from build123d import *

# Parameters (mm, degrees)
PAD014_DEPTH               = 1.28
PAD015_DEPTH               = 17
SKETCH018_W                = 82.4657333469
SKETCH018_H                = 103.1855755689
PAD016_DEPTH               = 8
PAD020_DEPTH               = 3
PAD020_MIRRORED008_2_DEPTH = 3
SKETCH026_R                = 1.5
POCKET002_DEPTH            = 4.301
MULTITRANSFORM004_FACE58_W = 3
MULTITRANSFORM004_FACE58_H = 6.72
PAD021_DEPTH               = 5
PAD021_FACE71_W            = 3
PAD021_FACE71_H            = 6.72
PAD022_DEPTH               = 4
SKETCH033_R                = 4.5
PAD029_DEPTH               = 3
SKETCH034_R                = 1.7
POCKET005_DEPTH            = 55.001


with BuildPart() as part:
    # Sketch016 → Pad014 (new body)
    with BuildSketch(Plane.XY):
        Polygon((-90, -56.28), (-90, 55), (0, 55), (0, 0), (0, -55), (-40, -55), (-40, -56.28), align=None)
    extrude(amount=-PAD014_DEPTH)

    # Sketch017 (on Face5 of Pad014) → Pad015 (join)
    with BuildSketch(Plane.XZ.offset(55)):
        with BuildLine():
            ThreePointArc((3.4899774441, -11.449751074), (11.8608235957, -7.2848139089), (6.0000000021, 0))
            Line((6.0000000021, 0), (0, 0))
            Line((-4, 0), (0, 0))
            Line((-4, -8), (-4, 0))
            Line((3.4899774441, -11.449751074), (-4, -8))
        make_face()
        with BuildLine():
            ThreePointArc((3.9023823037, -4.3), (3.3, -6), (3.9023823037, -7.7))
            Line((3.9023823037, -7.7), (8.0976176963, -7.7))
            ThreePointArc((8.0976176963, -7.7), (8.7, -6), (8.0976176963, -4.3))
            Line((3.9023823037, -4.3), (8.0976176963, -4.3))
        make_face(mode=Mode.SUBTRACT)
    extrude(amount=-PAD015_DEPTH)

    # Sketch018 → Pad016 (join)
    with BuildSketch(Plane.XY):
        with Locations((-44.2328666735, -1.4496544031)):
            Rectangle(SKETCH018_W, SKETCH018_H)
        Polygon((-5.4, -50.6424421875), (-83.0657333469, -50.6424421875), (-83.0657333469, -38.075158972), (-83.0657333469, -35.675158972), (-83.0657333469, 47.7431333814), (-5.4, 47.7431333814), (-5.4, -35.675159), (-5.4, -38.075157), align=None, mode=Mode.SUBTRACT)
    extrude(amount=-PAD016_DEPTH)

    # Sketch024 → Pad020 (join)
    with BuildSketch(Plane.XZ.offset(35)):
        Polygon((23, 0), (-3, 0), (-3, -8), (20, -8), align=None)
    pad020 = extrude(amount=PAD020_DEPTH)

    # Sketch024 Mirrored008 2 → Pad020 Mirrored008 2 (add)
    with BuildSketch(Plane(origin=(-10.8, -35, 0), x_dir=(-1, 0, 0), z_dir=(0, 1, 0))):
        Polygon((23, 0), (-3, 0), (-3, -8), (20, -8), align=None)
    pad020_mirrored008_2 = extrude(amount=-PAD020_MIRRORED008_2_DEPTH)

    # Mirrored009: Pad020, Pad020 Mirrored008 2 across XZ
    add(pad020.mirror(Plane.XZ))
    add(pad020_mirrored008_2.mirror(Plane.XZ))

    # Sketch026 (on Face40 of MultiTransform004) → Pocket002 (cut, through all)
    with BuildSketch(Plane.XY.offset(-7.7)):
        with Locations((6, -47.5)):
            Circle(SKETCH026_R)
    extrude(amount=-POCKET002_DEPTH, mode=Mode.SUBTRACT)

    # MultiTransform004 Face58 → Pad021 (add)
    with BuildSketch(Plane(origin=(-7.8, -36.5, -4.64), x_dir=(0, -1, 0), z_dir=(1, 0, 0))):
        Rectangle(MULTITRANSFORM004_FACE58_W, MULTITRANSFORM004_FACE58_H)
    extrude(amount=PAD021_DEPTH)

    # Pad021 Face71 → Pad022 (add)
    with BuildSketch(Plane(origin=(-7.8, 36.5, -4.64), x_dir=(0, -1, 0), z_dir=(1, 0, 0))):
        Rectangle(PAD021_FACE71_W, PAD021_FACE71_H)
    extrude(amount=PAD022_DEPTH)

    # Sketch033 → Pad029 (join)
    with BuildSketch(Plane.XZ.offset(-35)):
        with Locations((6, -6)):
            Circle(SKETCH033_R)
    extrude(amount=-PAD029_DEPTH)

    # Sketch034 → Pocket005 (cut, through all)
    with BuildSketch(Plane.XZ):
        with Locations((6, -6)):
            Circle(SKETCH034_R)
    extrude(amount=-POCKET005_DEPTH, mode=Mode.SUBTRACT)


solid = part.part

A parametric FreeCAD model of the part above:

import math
import FreeCAD as App
import Part
import Sketcher
from FreeCAD import Vector
Q = App.Units.Quantity


def add_polygon(sketch, points):
    """Adds a closed chain of lines whose ends are joined by coincident constraints."""
    first, n = sketch.GeometryCount, len(points)
    for a, b in zip(points, points[1:] + points[:1]):
        sketch.addGeometry(Part.LineSegment(App.Vector(*a, 0), App.Vector(*b, 0)), False)
    for i in range(n):
        sketch.addConstraint(Sketcher.Constraint("Coincident", first + i, 2, first + (i + 1) % n, 1))

doc = App.newDocument("Part")
params = doc.addObject("Spreadsheet::Sheet", "Params")
for row, (alias, value) in enumerate([
    ("sketch1_width", "50 mm"),
    ("sketch1_width2", "40 mm"),
    ("sketch1_height", "110 mm"),
    ("sketch1_height2", "111.28 mm"),
    ("pad1_length", "1.28 mm"),
    ("sketch2_radius", "6 mm"),
    ("sketch2_radius2", "2.7 mm"),
    ("sketch2_width", "10 mm"),
    ("sketch2_height", "8 mm"),
    ("pad2_length", "17 mm"),
    ("pad3_length", "8 mm"),
    ("sketch4_width", "26 mm"),
    ("sketch4_width2", "23 mm"),
    ("sketch4_height", "8 mm"),
    ("pad4_length", "3 mm"),
    ("sketch5_width", "26 mm"),
    ("sketch5_width2", "23 mm"),
    ("sketch5_height", "8 mm"),
    ("pad5_length", "3 mm"),
    ("sketch6_diameter", "3 mm"),
    ("sketch7_width", "3 mm"),
    ("sketch7_height", "6.72 mm"),
    ("pad6_length", "5 mm"),
    ("sketch8_width", "3 mm"),
    ("sketch8_height", "6.72 mm"),
    ("pad7_length", "4 mm"),
    ("sketch9_diameter", "9 mm"),
    ("pad8_length", "3 mm"),
    ("sketch10_diameter", "3.4 mm"),
], start=1):
    params.set(f"A{row}", alias)
    params.set(f"B{row}", "=" + value)
    params.setAlias(f"B{row}", alias)

body = doc.addObject("PartDesign::Body", "Body")

# Sketch on XY plane
sketch1 = body.newObject("Sketcher::SketchObject", "Sketch")
sketch1.AttachmentSupport = (doc.getObject("XY_Plane"), [""])
sketch1.MapMode = "FlatFace"
add_polygon(sketch1, [(-90, 55), (-90, -56.28), (-40, -56.28), (-40, -55), (0, -55), (0, 55)])  # lines 0-5
sketch1.addConstraint([
    Sketcher.Constraint("Vertical", 0),
    Sketcher.Constraint("Horizontal", 1),
    Sketcher.Constraint("Vertical", 2),
    Sketcher.Constraint("Horizontal", 3),
    Sketcher.Constraint("Vertical", 4),
    Sketcher.Constraint("Horizontal", 5),
    Sketcher.Constraint("Symmetric", 3, 2, 4, 2, -1, 1),
    Sketcher.Constraint("DistanceX", 1, 1, 1, 2, Q("50 mm")),
    Sketcher.Constraint("DistanceX", 3, 1, 3, 2, Q("40 mm")),
    Sketcher.Constraint("DistanceY", 4, 1, 4, 2, Q("110 mm")),
    Sketcher.Constraint("DistanceY", 0, 2, 0, 1, Q("111.28 mm")),
])
sketch1.setExpression("Constraints[13]", "Params.sketch1_width")
sketch1.setExpression("Constraints[14]", "Params.sketch1_width2")
sketch1.setExpression("Constraints[15]", "Params.sketch1_height")
sketch1.setExpression("Constraints[16]", "Params.sketch1_height2")
pad1 = body.newObject("PartDesign::Pad", "Pad")
pad1.Profile = sketch1
pad1.setExpression("Length", "Params.pad1_length")
pad1.Reversed = True

# Sketch on XZ plane
sketch2 = body.newObject("Sketcher::SketchObject", "Sketch001")
sketch2.AttachmentSupport = (doc.getObject("XZ_Plane"), [""])
sketch2.MapMode = "FlatFace"
sketch2.AttachmentOffset = App.Placement(Vector(0, 0, 55), App.Rotation())
sketch2.addGeometry([
    Part.ArcOfCircle(Part.Circle(Vector(6, -6, 0), Vector(0, 0, 1), 6), math.radians(-114.729646), math.radians(90)),  # 0
    Part.LineSegment(Vector(6, 0, 0), Vector(-4, 0, 0)),  # 1
    Part.LineSegment(Vector(-4, 0, 0), Vector(-4, -8, 0)),  # 2
    Part.LineSegment(Vector(-4, -8, 0), Vector(3.489977, -11.449751, 0)),  # 3
    Part.ArcOfCircle(Part.Circle(Vector(6, -6, 0), Vector(0, 0, 1), 2.7), math.radians(140.977197), math.radians(219.022803)),  # 4
    Part.LineSegment(Vector(3.902382, -4.3, 0), Vector(8.097618, -4.3, 0)),  # 5
    Part.ArcOfCircle(Part.Circle(Vector(6, -6, 0), Vector(0, 0, 1), 2.7), math.radians(-39.022803), math.radians(39.022803)),  # 6
    Part.LineSegment(Vector(8.097618, -7.7, 0), Vector(3.902382, -7.7, 0)),  # 7
], False)
sketch2.addConstraint([
    Sketcher.Constraint("Tangent", 0, 2, 1, 1),
    Sketcher.Constraint("Coincident", 1, 2, 2, 1),
    Sketcher.Constraint("Coincident", 2, 2, 3, 1),
    Sketcher.Constraint("Coincident", 3, 2, 0, 1),
    Sketcher.Constraint("Coincident", 4, 1, 5, 1),
    Sketcher.Constraint("Coincident", 5, 2, 6, 2),
    Sketcher.Constraint("Coincident", 6, 1, 7, 1),
    Sketcher.Constraint("Coincident", 7, 2, 4, 2),
    Sketcher.Constraint("Horizontal", 1),
    Sketcher.Constraint("Vertical", 2),
    Sketcher.Constraint("Horizontal", 5),
    Sketcher.Constraint("Horizontal", 7),
    Sketcher.Constraint("Coincident", 4, 3, 0, 3),
    Sketcher.Constraint("Coincident", 6, 3, 0, 3),
    Sketcher.Constraint("Equal", 4, 6),
    Sketcher.Constraint("PointOnObject", 0, 2, -1),
    Sketcher.Constraint("Vertical", 5, 2, 6, 1),
    Sketcher.Constraint("Radius", 0, Q("6 mm")),
    Sketcher.Constraint("Radius", 4, Q("2.7 mm")),
    Sketcher.Constraint("DistanceX", 1, 2, 1, 1, Q("10 mm")),
    Sketcher.Constraint("DistanceY", 2, 2, 2, 1, Q("8 mm")),
    Sketcher.Constraint("DistanceX", -1, 1, 0, 3, Q("6 mm")),
    Sketcher.Constraint("DistanceY", 4, 1, -1, 1, Q("4.3 mm")),
    Sketcher.Constraint("DistanceY", 3, 2, -1, 1, Q("11.449751 mm")),
])
sketch2.setExpression("Constraints[17]", "Params.sketch2_radius")
sketch2.setExpression("Constraints[18]", "Params.sketch2_radius2")
sketch2.setExpression("Constraints[19]", "Params.sketch2_width")
sketch2.setExpression("Constraints[20]", "Params.sketch2_height")
pad2 = body.newObject("PartDesign::Pad", "Pad001")
pad2.Profile = sketch2
pad2.setExpression("Length", "Params.pad2_length")
pad2.Reversed = True

# Sketch on XY plane
sketch3 = body.newObject("Sketcher::SketchObject", "Sketch002")
sketch3.AttachmentSupport = (doc.getObject("XY_Plane"), [""])
sketch3.MapMode = "FlatFace"
add_polygon(sketch3, [(-85.465733, 50.143133), (-85.465733, -53.042442), (-3, -53.042442), (-3, 50.143133)])  # lines 0-3
add_polygon(sketch3, [(-5.4, 47.743133), (-5.4, -50.642442), (-83.065733, -50.642442), (-83.065733, 47.743133)])  # lines 4-7
sketch3.addConstraint([
    Sketcher.Constraint("Vertical", 0),
    Sketcher.Constraint("Horizontal", 1),
    Sketcher.Constraint("Vertical", 2),
    Sketcher.Constraint("Horizontal", 3),
    Sketcher.Constraint("Vertical", 4),
    Sketcher.Constraint("Horizontal", 5),
    Sketcher.Constraint("Vertical", 6),
    Sketcher.Constraint("Horizontal", 7),
    Sketcher.Constraint("DistanceX", 1, 2, -1, 1, Q("3 mm")),
    Sketcher.Constraint("DistanceX", 4, 2, -1, 1, Q("5.4 mm")),
    Sketcher.Constraint("DistanceY", 1, 2, 4, 2, Q("2.4 mm")),
    Sketcher.Constraint("DistanceX", 0, 2, 5, 2, Q("2.4 mm")),
    Sketcher.Constraint("DistanceY", 6, 2, 3, 2, Q("2.4 mm")),
    Sketcher.Constraint("DistanceX", 1, 1, 1, 2, Q("82.465733 mm")),
    Sketcher.Constraint("DistanceY", 0, 2, 0, 1, Q("103.185576 mm")),
    Sketcher.Constraint("DistanceY", 0, 2, -1, 1, Q("53.042442 mm")),
])
pad3 = body.newObject("PartDesign::Pad", "Pad002")
pad3.Profile = sketch3
pad3.setExpression("Length", "Params.pad3_length")
pad3.Reversed = True

# Sketch on XZ plane
sketch4 = body.newObject("Sketcher::SketchObject", "Sketch003")
sketch4.AttachmentSupport = (doc.getObject("XZ_Plane"), [""])
sketch4.MapMode = "FlatFace"
sketch4.AttachmentOffset = App.Placement(Vector(0, 0, 35), App.Rotation())
add_polygon(sketch4, [(23, 0), (-3, 0), (-3, -8), (20, -8)])  # lines 0-3
sketch4.addConstraint([
    Sketcher.Constraint("Horizontal", 0),
    Sketcher.Constraint("Vertical", 1),
    Sketcher.Constraint("Horizontal", 2),
    Sketcher.Constraint("PointOnObject", 0, 2, -1),
    Sketcher.Constraint("DistanceX", 0, 2, 0, 1, Q("26 mm")),
    Sketcher.Constraint("DistanceX", 2, 1, 2, 2, Q("23 mm")),
    Sketcher.Constraint("DistanceY", 1, 2, 1, 1, Q("8 mm")),
    Sketcher.Constraint("DistanceX", 0, 2, -1, 1, Q("3 mm")),
])
sketch4.setExpression("Constraints[8]", "Params.sketch4_width")
sketch4.setExpression("Constraints[9]", "Params.sketch4_width2")
sketch4.setExpression("Constraints[10]", "Params.sketch4_height")
pad4 = body.newObject("PartDesign::Pad", "Pad003")
pad4.Profile = sketch4
pad4.setExpression("Length", "Params.pad4_length")

# Sketch on XZ plane
sketch5 = body.newObject("Sketcher::SketchObject", "Sketch004")
sketch5.AttachmentSupport = (doc.getObject("XZ_Plane"), [""])
sketch5.MapMode = "FlatFace"
sketch5.AttachmentOffset = App.Placement(Vector(0, 0, 35), App.Rotation())
add_polygon(sketch5, [(-33.8, 0), (-7.8, 0), (-7.8, -8), (-30.8, -8)])  # lines 0-3
sketch5.addConstraint([
    Sketcher.Constraint("Horizontal", 0),
    Sketcher.Constraint("Vertical", 1),
    Sketcher.Constraint("Horizontal", 2),
    Sketcher.Constraint("PointOnObject", 0, 2, -1),
    Sketcher.Constraint("DistanceX", 0, 1, 0, 2, Q("26 mm")),
    Sketcher.Constraint("DistanceX", 2, 2, 2, 1, Q("23 mm")),
    Sketcher.Constraint("DistanceY", 1, 2, 1, 1, Q("8 mm")),
    Sketcher.Constraint("DistanceX", 0, 2, -1, 1, Q("7.8 mm")),
])
sketch5.setExpression("Constraints[8]", "Params.sketch5_width")
sketch5.setExpression("Constraints[9]", "Params.sketch5_width2")
sketch5.setExpression("Constraints[10]", "Params.sketch5_height")
pad5 = body.newObject("PartDesign::Pad", "Pad004")
pad5.Profile = sketch5
pad5.setExpression("Length", "Params.pad5_length")
doc.recompute()

mirrored = body.newObject("PartDesign::Mirrored", "Mirrored")
mirrored.Originals = [pad4, pad5]
mirrored.MirrorPlane = (doc.getObject("XZ_Plane"), [""])
body.Tip = mirrored

# Sketch on XY plane
sketch6 = body.newObject("Sketcher::SketchObject", "Sketch005")
sketch6.AttachmentSupport = (doc.getObject("XY_Plane"), [""])
sketch6.MapMode = "FlatFace"
sketch6.AttachmentOffset = App.Placement(Vector(0, 0, -7.7), App.Rotation())
sketch6.addGeometry(Part.Circle(Vector(6, -47.5, 0), Vector(0, 0, 1), 1.5), False)
sketch6.addConstraint([
    Sketcher.Constraint("Diameter", 0, Q("3 mm")),
    Sketcher.Constraint("DistanceX", -1, 1, 0, 3, Q("6 mm")),
    Sketcher.Constraint("DistanceY", 0, 3, -1, 1, Q("47.5 mm")),
])
sketch6.setExpression("Constraints[0]", "Params.sketch6_diameter")
pocket1 = body.newObject("PartDesign::Pocket", "Pocket")
pocket1.Profile = sketch6
pocket1.Type = "ThroughAll"

# Sketch on YZ plane
sketch7 = body.newObject("Sketcher::SketchObject", "Sketch006")
sketch7.AttachmentSupport = (doc.getObject("YZ_Plane"), [""])
sketch7.MapMode = "FlatFace"
sketch7.AttachmentOffset = App.Placement(Vector(0, 0, -7.8), App.Rotation())
add_polygon(sketch7, [(-35, -8), (-35, -1.28), (-38, -1.28), (-38, -8)])  # lines 0-3
sketch7.addConstraint([
    Sketcher.Constraint("Vertical", 0),
    Sketcher.Constraint("Horizontal", 1),
    Sketcher.Constraint("Vertical", 2),
    Sketcher.Constraint("Horizontal", 3),
    Sketcher.Constraint("DistanceX", 1, 2, 1, 1, Q("3 mm")),
    Sketcher.Constraint("DistanceX", 0, 2, -1, 1, Q("35 mm")),
    Sketcher.Constraint("DistanceY", 2, 2, -1, 1, Q("8 mm")),
    Sketcher.Constraint("DistanceY", 0, 1, 0, 2, Q("6.72 mm")),
])
sketch7.setExpression("Constraints[8]", "Params.sketch7_width")
sketch7.setExpression("Constraints[11]", "Params.sketch7_height")
pad6 = body.newObject("PartDesign::Pad", "Pad005")
pad6.Profile = sketch7
pad6.setExpression("Length", "Params.pad6_length")

# Sketch on YZ plane
sketch8 = body.newObject("Sketcher::SketchObject", "Sketch007")
sketch8.AttachmentSupport = (doc.getObject("YZ_Plane"), [""])
sketch8.MapMode = "FlatFace"
sketch8.AttachmentOffset = App.Placement(Vector(0, 0, -7.8), App.Rotation())
add_polygon(sketch8, [(38, -8), (38, -1.28), (35, -1.28), (35, -8)])  # lines 0-3
sketch8.addConstraint([
    Sketcher.Constraint("Vertical", 0),
    Sketcher.Constraint("Horizontal", 1),
    Sketcher.Constraint("Vertical", 2),
    Sketcher.Constraint("Horizontal", 3),
    Sketcher.Constraint("DistanceX", 1, 2, 1, 1, Q("3 mm")),
    Sketcher.Constraint("DistanceX", -1, 1, 0, 2, Q("38 mm")),
    Sketcher.Constraint("DistanceY", 2, 2, -1, 1, Q("8 mm")),
    Sketcher.Constraint("DistanceY", 0, 1, 0, 2, Q("6.72 mm")),
])
sketch8.setExpression("Constraints[8]", "Params.sketch8_width")
sketch8.setExpression("Constraints[11]", "Params.sketch8_height")
pad7 = body.newObject("PartDesign::Pad", "Pad006")
pad7.Profile = sketch8
pad7.setExpression("Length", "Params.pad7_length")

# Sketch on XZ plane
sketch9 = body.newObject("Sketcher::SketchObject", "Sketch008")
sketch9.AttachmentSupport = (doc.getObject("XZ_Plane"), [""])
sketch9.MapMode = "FlatFace"
sketch9.AttachmentOffset = App.Placement(Vector(0, 0, -35), App.Rotation())
sketch9.addGeometry(Part.Circle(Vector(6, -6, 0), Vector(0, 0, 1), 4.5), False)
sketch9.addConstraint([
    Sketcher.Constraint("Diameter", 0, Q("9 mm")),
    Sketcher.Constraint("DistanceX", -1, 1, 0, 3, Q("6 mm")),
    Sketcher.Constraint("DistanceY", 0, 3, -1, 1, Q("6 mm")),
])
sketch9.setExpression("Constraints[0]", "Params.sketch9_diameter")
pad8 = body.newObject("PartDesign::Pad", "Pad007")
pad8.Profile = sketch9
pad8.setExpression("Length", "Params.pad8_length")
pad8.Reversed = True

# Sketch on XZ plane
sketch10 = body.newObject("Sketcher::SketchObject", "Sketch009")
sketch10.AttachmentSupport = (doc.getObject("XZ_Plane"), [""])
sketch10.MapMode = "FlatFace"
sketch10.addGeometry(Part.Circle(Vector(6, -6, 0), Vector(0, 0, 1), 1.7), False)
sketch10.addConstraint([
    Sketcher.Constraint("Diameter", 0, Q("3.4 mm")),
    Sketcher.Constraint("DistanceX", -1, 1, 0, 3, Q("6 mm")),
    Sketcher.Constraint("DistanceY", 0, 3, -1, 1, Q("6 mm")),
])
sketch10.setExpression("Constraints[0]", "Params.sketch10_diameter")
pocket2 = body.newObject("PartDesign::Pocket", "Pocket001")
pocket2.Profile = sketch10
pocket2.Type = "ThroughAll"

doc.recompute()
